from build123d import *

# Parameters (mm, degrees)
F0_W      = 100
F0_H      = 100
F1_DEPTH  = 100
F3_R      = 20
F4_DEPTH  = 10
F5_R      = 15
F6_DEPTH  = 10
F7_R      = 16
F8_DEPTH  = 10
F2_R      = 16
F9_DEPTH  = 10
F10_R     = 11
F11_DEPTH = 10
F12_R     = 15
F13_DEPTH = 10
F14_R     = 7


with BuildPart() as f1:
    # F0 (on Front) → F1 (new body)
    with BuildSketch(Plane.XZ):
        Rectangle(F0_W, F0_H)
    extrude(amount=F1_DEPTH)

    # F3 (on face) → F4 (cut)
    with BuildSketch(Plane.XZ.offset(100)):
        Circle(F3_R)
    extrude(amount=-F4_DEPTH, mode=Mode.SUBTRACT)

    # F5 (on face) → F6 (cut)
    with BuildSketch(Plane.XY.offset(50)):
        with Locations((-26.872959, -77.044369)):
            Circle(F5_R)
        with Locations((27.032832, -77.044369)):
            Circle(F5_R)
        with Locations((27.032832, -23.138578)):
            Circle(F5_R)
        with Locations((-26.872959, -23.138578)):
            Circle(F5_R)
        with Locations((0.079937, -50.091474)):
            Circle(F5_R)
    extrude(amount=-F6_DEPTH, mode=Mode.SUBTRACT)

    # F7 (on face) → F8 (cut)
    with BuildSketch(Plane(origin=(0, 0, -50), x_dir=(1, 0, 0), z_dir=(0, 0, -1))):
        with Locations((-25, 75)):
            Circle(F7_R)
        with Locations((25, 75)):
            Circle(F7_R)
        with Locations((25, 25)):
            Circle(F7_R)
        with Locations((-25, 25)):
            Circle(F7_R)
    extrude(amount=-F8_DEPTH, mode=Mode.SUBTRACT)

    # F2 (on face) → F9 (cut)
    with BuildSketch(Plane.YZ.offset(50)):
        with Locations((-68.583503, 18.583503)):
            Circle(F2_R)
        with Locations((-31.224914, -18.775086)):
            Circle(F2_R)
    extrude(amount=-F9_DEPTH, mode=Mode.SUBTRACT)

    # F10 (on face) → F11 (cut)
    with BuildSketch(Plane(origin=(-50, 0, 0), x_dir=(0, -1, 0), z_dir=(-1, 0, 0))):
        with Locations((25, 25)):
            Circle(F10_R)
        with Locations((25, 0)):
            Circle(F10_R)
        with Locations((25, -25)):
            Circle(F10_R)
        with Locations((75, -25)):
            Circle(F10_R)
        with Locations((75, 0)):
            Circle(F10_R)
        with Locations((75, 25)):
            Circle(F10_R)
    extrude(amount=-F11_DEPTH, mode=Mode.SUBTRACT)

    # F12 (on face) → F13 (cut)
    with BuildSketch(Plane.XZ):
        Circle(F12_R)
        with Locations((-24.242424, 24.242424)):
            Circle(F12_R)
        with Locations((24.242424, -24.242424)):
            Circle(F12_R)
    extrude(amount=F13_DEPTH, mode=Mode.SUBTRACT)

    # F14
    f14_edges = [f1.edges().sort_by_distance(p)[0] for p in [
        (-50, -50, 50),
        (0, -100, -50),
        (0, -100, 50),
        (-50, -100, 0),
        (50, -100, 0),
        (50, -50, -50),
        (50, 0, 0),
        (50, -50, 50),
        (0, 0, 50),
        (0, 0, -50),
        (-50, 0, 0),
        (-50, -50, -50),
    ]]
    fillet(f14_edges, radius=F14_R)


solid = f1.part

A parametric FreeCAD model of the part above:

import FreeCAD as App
import Part
import Sketcher
from FreeCAD import Vector
Q = App.Units.Quantity


def edges_at(feature, points):
    """Names of the edges that pass closest to the given points."""
    edges = feature.Shape.Edges
    near = lambda p: min(range(len(edges)), key=lambda i: edges[i].distToShape(Part.Vertex(*p))[0])
    return sorted({f"Edge{near(p) + 1}" for p in points})


def add_polygon(sketch, points):
    """Adds a closed chain of lines whose ends are joined by coincident constraints."""
    first, n = sketch.GeometryCount, len(points)
    for a, b in zip(points, points[1:] + points[:1]):
        sketch.addGeometry(Part.LineSegment(App.Vector(*a, 0), App.Vector(*b, 0)), False)
    for i in range(n):
        sketch.addConstraint(Sketcher.Constraint("Coincident", first + i, 2, first + (i + 1) % n, 1))

doc = App.newDocument("Part")
params = doc.addObject("Spreadsheet::Sheet", "Params")
for row, (alias, value) in enumerate([
    ("sketch1_width", "100 mm"),
    ("pad1_length", "100 mm"),
    ("sketch2_diameter", "40 mm"),
    ("pocket1_length", "10 mm"),
    ("sketch3_diameter", "30 mm"),
    ("pocket2_length", "10 mm"),
    ("sketch4_diameter", "32 mm"),
    ("pocket3_length", "10 mm"),
    ("sketch5_diameter", "32 mm"),
    ("pocket4_length", "10 mm"),
    ("sketch6_diameter", "22 mm"),
    ("pocket5_length", "10 mm"),
    ("sketch7_diameter", "30 mm"),
    ("pocket6_length", "10 mm"),
    ("fillet_radius", "7 mm"),
], start=1):
    params.set(f"A{row}", alias)
    params.set(f"B{row}", "=" + value)
    params.setAlias(f"B{row}", alias)

body = doc.addObject("PartDesign::Body", "Body")

sketch1 = body.newObject("Sketcher::SketchObject", "Sketch")
sketch1.AttachmentSupport = (doc.getObject("XZ_Plane"), [""])
sketch1.MapMode = "FlatFace"
add_polygon(sketch1, [(-50, 50), (-50, -50), (50, -50), (50, 50)])
sketch1.addConstraint(Sketcher.Constraint("Vertical", 0))
sketch1.addConstraint(Sketcher.Constraint("Horizontal", 1))
sketch1.addConstraint(Sketcher.Constraint("Vertical", 2))
sketch1.addConstraint(Sketcher.Constraint("Horizontal", 3))
sketch1.addConstraint(Sketcher.Constraint("Symmetric", 0, 2, 2, 2, -1, 1))
sketch1.addConstraint(Sketcher.Constraint("Equal", 3, 0))
sketch1.addConstraint(Sketcher.Constraint("DistanceX", 1, 1, 1, 2, Q("100 mm")))
sketch1.setExpression("Constraints[10]", "Params.sketch1_width")
pad1 = body.newObject("PartDesign::Pad", "Pad")
pad1.Profile = sketch1
pad1.setExpression("Length", "Params.pad1_length")

sketch2 = body.newObject("Sketcher::SketchObject", "Sketch001")
sketch2.AttachmentSupport = (doc.getObject("XZ_Plane"), [""])
sketch2.MapMode = "FlatFace"
sketch2.AttachmentOffset = App.Placement(Vector(0, 0, 100), App.Rotation())
sketch2.addGeometry(Part.Circle(Vector(0, 0, 0), Vector(0, 0, 1), 20), False)
sketch2.addConstraint(Sketcher.Constraint("Coincident", 0, 3, -1, 1))
sketch2.addConstraint(Sketcher.Constraint("Diameter", 0, Q("40 mm")))
sketch2.setExpression("Constraints[1]", "Params.sketch2_diameter")
pocket1 = body.newObject("PartDesign::Pocket", "Pocket")
pocket1.Profile = sketch2
pocket1.setExpression("Length", "Params.pocket1_length")

sketch3 = body.newObject("Sketcher::SketchObject", "Sketch002")
sketch3.AttachmentSupport = (doc.getObject("XY_Plane"), [""])
sketch3.MapMode = "FlatFace"
sketch3.AttachmentOffset = App.Placement(Vector(0, 0, 50), App.Rotation())
sketch3.addGeometry(Part.Circle(Vector(-26.872959, -77.044369, 0), Vector(0, 0, 1), 15), False)
sketch3.addGeometry(Part.Circle(Vector(27.032832, -77.044369, 0), Vector(0, 0, 1), 15), False)
sketch3.addGeometry(Part.Circle(Vector(27.032832, -23.138578, 0), Vector(0, 0, 1), 15), False)
sketch3.addGeometry(Part.Circle(Vector(-26.872959, -23.138578, 0), Vector(0, 0, 1), 15), False)
sketch3.addGeometry(Part.Circle(Vector(0.079937, -50.091474, 0), Vector(0, 0, 1), 15), False)
sketch3.addConstraint(Sketcher.Constraint("Equal", 0, 1))
sketch3.addConstraint(Sketcher.Constraint("Equal", 1, 2))
sketch3.addConstraint(Sketcher.Constraint("Equal", 2, 3))
sketch3.addConstraint(Sketcher.Constraint("Equal", 3, 4))
sketch3.addConstraint(Sketcher.Constraint("Horizontal", 0, 3, 1, 3))
sketch3.addConstraint(Sketcher.Constraint("Horizontal", 2, 3, 3, 3))
sketch3.addConstraint(Sketcher.Constraint("Vertical", 1, 3, 2, 3))
sketch3.addConstraint(Sketcher.Constraint("Vertical", 0, 3, 3, 3))
sketch3.addConstraint(Sketcher.Constraint("Diameter", 0, Q("30 mm")))
sketch3.addConstraint(Sketcher.Constraint("DistanceX", 0, 3, -1, 1, Q("26.872959 mm")))
sketch3.addConstraint(Sketcher.Constraint("DistanceY", 0, 3, -1, 1, Q("77.044369 mm")))
sketch3.addConstraint(Sketcher.Constraint("DistanceX", -1, 1, 1, 3, Q("27.032832 mm")))
sketch3.addConstraint(Sketcher.Constraint("DistanceY", 1, 3, 2, 3, Q("53.905791 mm")))
sketch3.addConstraint(Sketcher.Constraint("DistanceX", -1, 1, 4, 3, Q("0.079937 mm")))
sketch3.addConstraint(Sketcher.Constraint("DistanceY", 4, 3, -1, 1, Q("50.091474 mm")))
sketch3.setExpression("Constraints[8]", "Params.sketch3_diameter")
pocket2 = body.newObject("PartDesign::Pocket", "Pocket001")
pocket2.Profile = sketch3
pocket2.setExpression("Length", "Params.pocket2_length")

sketch4 = body.newObject("Sketcher::SketchObject", "Sketch003")
sketch4.AttachmentSupport = (doc.getObject("XY_Plane"), [""])
sketch4.MapMode = "FlatFace"
sketch4.AttachmentOffset = App.Placement(Vector(0, 0, -50), App.Rotation())
sketch4.addGeometry(Part.Circle(Vector(-25, -75, 0), Vector(0, 0, 1), 16), False)
sketch4.addGeometry(Part.Circle(Vector(25, -75, 0), Vector(0, 0, 1), 16), False)
sketch4.addGeometry(Part.Circle(Vector(25, -25, 0), Vector(0, 0, 1), 16), False)
sketch4.addGeometry(Part.Circle(Vector(-25, -25, 0), Vector(0, 0, 1), 16), False)
sketch4.addConstraint(Sketcher.Constraint("Equal", 0, 1))
sketch4.addConstraint(Sketcher.Constraint("Equal", 1, 2))
sketch4.addConstraint(Sketcher.Constraint("Equal", 2, 3))
sketch4.addConstraint(Sketcher.Constraint("Symmetric", 0, 3, 1, 3, -2))
sketch4.addConstraint(Sketcher.Constraint("Symmetric", 2, 3, 3, 3, -2))
sketch4.addConstraint(Sketcher.Constraint("Vertical", 1, 3, 2, 3))
sketch4.addConstraint(Sketcher.Constraint("Diameter", 0, Q("32 mm")))
sketch4.addConstraint(Sketcher.Constraint("DistanceX", 0, 3, -1, 1, Q("25 mm")))
sketch4.addConstraint(Sketcher.Constraint("DistanceY", 0, 3, -1, 1, Q("75 mm")))
sketch4.addConstraint(Sketcher.Constraint("DistanceY", 2, 3, -1, 1, Q("25 mm")))
sketch4.setExpression("Constraints[6]", "Params.sketch4_diameter")
pocket3 = body.newObject("PartDesign::Pocket", "Pocket002")
pocket3.Profile = sketch4
pocket3.setExpression("Length", "Params.pocket3_length")
pocket3.Reversed = True

sketch5 = body.newObject("Sketcher::SketchObject", "Sketch004")
sketch5.AttachmentSupport = (doc.getObject("YZ_Plane"), [""])
sketch5.MapMode = "FlatFace"
sketch5.AttachmentOffset = App.Placement(Vector(0, 0, 50), App.Rotation())
sketch5.addGeometry(Part.Circle(Vector(-68.583503, 18.583503, 0), Vector(0, 0, 1), 16), False)
sketch5.addGeometry(Part.Circle(Vector(-31.224914, -18.775086, 0), Vector(0, 0, 1), 16), False)
sketch5.addConstraint(Sketcher.Constraint("Equal", 0, 1))
sketch5.addConstraint(Sketcher.Constraint("Diameter", 0, Q("32 mm")))
sketch5.addConstraint(Sketcher.Constraint("DistanceX", 0, 3, 1, 3, Q("37.358589 mm")))
sketch5.addConstraint(Sketcher.Constraint("DistanceY", 1, 3, 0, 3, Q("37.358589 mm")))
sketch5.addConstraint(Sketcher.Constraint("DistanceX", 0, 3, -1, 1, Q("68.583503 mm")))
sketch5.addConstraint(Sketcher.Constraint("DistanceY", -1, 1, 0, 3, Q("18.583503 mm")))
sketch5.setExpression("Constraints[1]", "Params.sketch5_diameter")
pocket4 = body.newObject("PartDesign::Pocket", "Pocket003")
pocket4.Profile = sketch5
pocket4.setExpression("Length", "Params.pocket4_length")

sketch6 = body.newObject("Sketcher::SketchObject", "Sketch005")
sketch6.AttachmentSupport = (doc.getObject("YZ_Plane"), [""])
sketch6.MapMode = "FlatFace"
sketch6.AttachmentOffset = App.Placement(Vector(0, 0, -50), App.Rotation())
sketch6.addGeometry(Part.Circle(Vector(-25, 25, 0), Vector(0, 0, 1), 11), False)
sketch6.addGeometry(Part.Circle(Vector(-25, 0, 0), Vector(0, 0, 1), 11), False)
sketch6.addGeometry(Part.Circle(Vector(-25, -25, 0), Vector(0, 0, 1), 11), False)
sketch6.addGeometry(Part.Circle(Vector(-75, -25, 0), Vector(0, 0, 1), 11), False)
sketch6.addGeometry(Part.Circle(Vector(-75, 0, 0), Vector(0, 0, 1), 11), False)
sketch6.addGeometry(Part.Circle(Vector(-75, 25, 0), Vector(0, 0, 1), 11), False)
sketch6.addConstraint(Sketcher.Constraint("Equal", 0, 1))
sketch6.addConstraint(Sketcher.Constraint("Equal", 1, 2))
sketch6.addConstraint(Sketcher.Constraint("Equal", 2, 3))
sketch6.addConstraint(Sketcher.Constraint("Equal", 3, 4))
sketch6.addConstraint(Sketcher.Constraint("Equal", 4, 5))
sketch6.addConstraint(Sketcher.Constraint("Symmetric", 0, 3, 2, 3, -1))
sketch6.addConstraint(Sketcher.Constraint("Symmetric", 3, 3, 5, 3, -1))
sketch6.addConstraint(Sketcher.Constraint("PointOnObject", 1, 3, -1))
sketch6.addConstraint(Sketcher.Constraint("PointOnObject", 4, 3, -1))
sketch6.addConstraint(Sketcher.Constraint("Horizontal", 2, 3, 3, 3))
sketch6.addConstraint(Sketcher.Constraint("Vertical", 0, 3, 1, 3))
sketch6.addConstraint(Sketcher.Constraint("Vertical", 3, 3, 4, 3))
sketch6.addConstraint(Sketcher.Constraint("Diameter", 0, Q("22 mm")))
sketch6.addConstraint(Sketcher.Constraint("DistanceX", 0, 3, -1, 1, Q("25 mm")))
sketch6.addConstraint(Sketcher.Constraint("DistanceY", -1, 1, 0, 3, Q("25 mm")))
sketch6.addConstraint(Sketcher.Constraint("DistanceX", 3, 3, -1, 1, Q("75 mm")))
sketch6.setExpression("Constraints[12]", "Params.sketch6_diameter")
pocket5 = body.newObject("PartDesign::Pocket", "Pocket004")
pocket5.Profile = sketch6
pocket5.setExpression("Length", "Params.pocket5_length")
pocket5.Reversed = True

sketch7 = body.newObject("Sketcher::SketchObject", "Sketch006")
sketch7.AttachmentSupport = (doc.getObject("XZ_Plane"), [""])
sketch7.MapMode = "FlatFace"
sketch7.addGeometry(Part.Circle(Vector(0, 0, 0), Vector(0, 0, 1), 15), False)
sketch7.addGeometry(Part.Circle(Vector(-24.242424, 24.242424, 0), Vector(0, 0, 1), 15), False)
sketch7.addGeometry(Part.Circle(Vector(24.242424, -24.242424, 0), Vector(0, 0, 1), 15), False)
sketch7.addConstraint(Sketcher.Constraint("Coincident", 0, 3, -1, 1))
sketch7.addConstraint(Sketcher.Constraint("Equal", 0, 1))
sketch7.addConstraint(Sketcher.Constraint("Equal", 1, 2))
sketch7.addConstraint(Sketcher.Constraint("Symmetric", 1, 3, 2, 3, -1, 1))
sketch7.addConstraint(Sketcher.Constraint("Diameter", 0, Q("30 mm")))
sketch7.addConstraint(Sketcher.Constraint("DistanceX", 1, 3, -1, 1, Q("24.242424 mm")))
sketch7.addConstraint(Sketcher.Constraint("DistanceY", -1, 1, 1, 3, Q("24.242424 mm")))
sketch7.setExpression("Constraints[4]", "Params.sketch7_diameter")
pocket6 = body.newObject("PartDesign::Pocket", "Pocket005")
pocket6.Profile = sketch7
pocket6.setExpression("Length", "Params.pocket6_length")
pocket6.Reversed = True
doc.recompute()

fillet = body.newObject("PartDesign::Fillet", "Fillet")
fillet.Base = (pocket6, edges_at(pocket6, [
    (-50, -50, 50),
    (0, -100, -50),
    (0, -100, 50),
    (-50, -100, 0),
    (50, -100, 0),
    (50, -50, -50),
    (50, 0, 0),
    (50, -50, 50),
    (0, 0, 50),
    (0, 0, -50),
    (-50, 0, 0),
    (-50, -50, -50),
]))
fillet.setExpression("Radius", "Params.fillet_radius")

doc.recompute()
